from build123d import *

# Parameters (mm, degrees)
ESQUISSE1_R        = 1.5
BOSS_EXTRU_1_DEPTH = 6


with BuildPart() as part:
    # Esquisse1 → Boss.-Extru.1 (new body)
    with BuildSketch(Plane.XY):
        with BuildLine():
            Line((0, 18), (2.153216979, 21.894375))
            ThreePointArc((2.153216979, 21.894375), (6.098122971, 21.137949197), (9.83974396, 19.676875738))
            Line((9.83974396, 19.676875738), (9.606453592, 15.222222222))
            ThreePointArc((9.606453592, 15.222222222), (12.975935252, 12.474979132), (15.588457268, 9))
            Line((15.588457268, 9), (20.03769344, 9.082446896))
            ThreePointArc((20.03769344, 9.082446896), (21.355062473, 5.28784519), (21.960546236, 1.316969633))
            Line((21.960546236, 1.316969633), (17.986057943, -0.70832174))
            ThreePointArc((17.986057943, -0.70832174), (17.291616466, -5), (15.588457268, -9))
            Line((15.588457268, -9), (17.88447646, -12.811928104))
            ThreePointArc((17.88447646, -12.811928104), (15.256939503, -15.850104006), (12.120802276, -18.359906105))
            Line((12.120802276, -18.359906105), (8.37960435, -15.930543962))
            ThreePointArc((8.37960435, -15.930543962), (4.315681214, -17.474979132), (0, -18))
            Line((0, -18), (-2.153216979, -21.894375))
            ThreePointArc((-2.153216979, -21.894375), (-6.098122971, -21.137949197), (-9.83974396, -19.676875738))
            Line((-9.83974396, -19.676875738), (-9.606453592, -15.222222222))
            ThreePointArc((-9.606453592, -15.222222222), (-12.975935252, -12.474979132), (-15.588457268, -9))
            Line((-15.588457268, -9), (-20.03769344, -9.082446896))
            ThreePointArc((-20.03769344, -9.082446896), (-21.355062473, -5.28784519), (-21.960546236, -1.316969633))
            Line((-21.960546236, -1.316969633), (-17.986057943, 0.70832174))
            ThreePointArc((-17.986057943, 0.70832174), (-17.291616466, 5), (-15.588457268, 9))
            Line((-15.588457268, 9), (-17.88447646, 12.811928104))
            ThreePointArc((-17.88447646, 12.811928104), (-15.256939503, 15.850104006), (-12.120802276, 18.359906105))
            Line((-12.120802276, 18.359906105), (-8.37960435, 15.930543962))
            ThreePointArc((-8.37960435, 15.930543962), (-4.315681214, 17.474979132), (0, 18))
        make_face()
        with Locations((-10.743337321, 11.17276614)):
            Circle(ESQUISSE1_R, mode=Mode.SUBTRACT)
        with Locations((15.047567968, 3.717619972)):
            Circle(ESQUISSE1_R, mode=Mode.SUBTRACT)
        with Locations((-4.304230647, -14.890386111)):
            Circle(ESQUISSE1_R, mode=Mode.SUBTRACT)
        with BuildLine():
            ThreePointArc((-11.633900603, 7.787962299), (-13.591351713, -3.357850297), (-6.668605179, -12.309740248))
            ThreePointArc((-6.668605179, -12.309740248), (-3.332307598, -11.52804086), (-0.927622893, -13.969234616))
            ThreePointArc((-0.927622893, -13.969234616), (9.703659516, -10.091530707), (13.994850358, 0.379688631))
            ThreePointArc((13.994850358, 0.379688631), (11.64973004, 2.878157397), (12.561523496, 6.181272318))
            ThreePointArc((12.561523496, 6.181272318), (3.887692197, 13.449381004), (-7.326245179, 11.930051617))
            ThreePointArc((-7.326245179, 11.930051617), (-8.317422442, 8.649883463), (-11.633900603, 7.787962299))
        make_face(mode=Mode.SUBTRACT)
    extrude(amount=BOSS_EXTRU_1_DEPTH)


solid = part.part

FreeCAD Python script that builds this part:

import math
import FreeCAD as App
import Part
import Sketcher

V = App.Vector

doc = App.newDocument("Part")
params = doc.addObject("Spreadsheet::Sheet", "Params")
for row, (alias, value) in enumerate([
    ("sketch1_diameter", "3 mm"),
    ("sketch1_radius", "18 mm"),
    ("sketch1_radius2", "22 mm"),
    ("sketch1_radius3", "14 mm"),
    ("sketch1_radius4", "3.5 mm"),
    ("pad1_length", "6 mm"),
], start=1):
    params.set(f"A{row}", alias)
    params.set(f"B{row}", "=" + value)
    params.setAlias(f"B{row}", alias)

body = doc.addObject("PartDesign::Body", "Body")

# Sketch on XY plane
sketch1 = body.newObject("Sketcher::SketchObject", "Sketch")
sketch1.AttachmentSupport = (doc.getObject("XY_Plane"), [""])
sketch1.MapMode = "FlatFace"
sketch1.addGeometry(Part.LineSegment(V(2.153217, 21.894375, 0), V(0, 18, 0)), False)
sketch1.addGeometry(Part.ArcOfCircle(Part.Circle(V(0, 0, 0), V(0, 0, 1), 18), math.radians(90), math.radians(117.74476)), False)
sketch1.addGeometry(Part.LineSegment(V(-8.379604, 15.930544, 0), V(-12.120802, 18.359906, 0)), False)
sketch1.addGeometry(Part.ArcOfCircle(Part.Circle(V(0, 0, 0), V(0, 0, 1), 22), math.radians(123.431906), math.radians(144.38327)), False)
sketch1.addGeometry(Part.LineSegment(V(-17.884476, 12.811928, 0), V(-15.588457, 9, 0)), False)
sketch1.addGeometry(Part.ArcOfCircle(Part.Circle(V(0, 0, 0), V(0, 0, 1), 18), math.radians(150), math.radians(177.74476)), False)
sketch1.addGeometry(Part.LineSegment(V(-17.986058, 0.708322, 0), V(-21.960546, -1.31697, 0)), False)
sketch1.addGeometry(Part.ArcOfCircle(Part.Circle(V(0, 0, 0), V(0, 0, 1), 22), math.radians(-176.568094), math.radians(-155.61673)), False)
sketch1.addGeometry(Part.LineSegment(V(-20.037693, -9.082447, 0), V(-15.588457, -9, 0)), False)
sketch1.addGeometry(Part.ArcOfCircle(Part.Circle(V(0, 0, 0), V(0, 0, 1), 18), math.radians(-150), math.radians(-122.25524)), False)
sketch1.addGeometry(Part.LineSegment(V(-9.606454, -15.222222, 0), V(-9.839744, -19.676876, 0)), False)
sketch1.addGeometry(Part.ArcOfCircle(Part.Circle(V(0, 0, 0), V(0, 0, 1), 22), math.radians(-116.568094), math.radians(-95.61673)), False)
sketch1.addGeometry(Part.LineSegment(V(-2.153217, -21.894375, 0), V(0, -18, 0)), False)
sketch1.addGeometry(Part.ArcOfCircle(Part.Circle(V(0, 0, 0), V(0, 0, 1), 18), math.radians(-90), math.radians(-62.25524)), False)
sketch1.addGeometry(Part.LineSegment(V(8.379604, -15.930544, 0), V(12.120802, -18.359906, 0)), False)
sketch1.addGeometry(Part.ArcOfCircle(Part.Circle(V(0, 0, 0), V(0, 0, 1), 22), math.radians(-56.568094), math.radians(-35.61673)), False)
sketch1.addGeometry(Part.LineSegment(V(17.884476, -12.811928, 0), V(15.588457, -9, 0)), False)
sketch1.addGeometry(Part.ArcOfCircle(Part.Circle(V(0, 0, 0), V(0, 0, 1), 18), math.radians(-30), math.radians(-2.25524)), False)
sketch1.addGeometry(Part.LineSegment(V(17.986058, -0.708322, 0), V(21.960546, 1.31697, 0)), False)
sketch1.addGeometry(Part.ArcOfCircle(Part.Circle(V(0, 0, 0), V(0, 0, 1), 22), math.radians(3.431906), math.radians(24.38327)), False)
sketch1.addGeometry(Part.LineSegment(V(20.037693, 9.082447, 0), V(15.588457, 9, 0)), False)
sketch1.addGeometry(Part.ArcOfCircle(Part.Circle(V(0, 0, 0), V(0, 0, 1), 18), math.radians(30), math.radians(57.74476)), False)
sketch1.addGeometry(Part.LineSegment(V(9.606454, 15.222222, 0), V(9.839744, 19.676876, 0)), False)
sketch1.addGeometry(Part.ArcOfCircle(Part.Circle(V(0, 0, 0), V(0, 0, 1), 22), math.radians(63.431906), math.radians(84.38327)), False)
sketch1.addGeometry(Part.Circle(V(-4.304231, -14.890386, 0), V(0, 0, 1), 1.5), False)
sketch1.addGeometry(Part.Circle(V(15.047568, 3.71762, 0), V(0, 0, 1), 1.5), False)
sketch1.addGeometry(Part.ArcOfCircle(Part.Circle(V(-10.743337, 11.172766, 0), V(0, 0, 1), 3.5), math.radians(-104.740799), math.radians(12.495755)), False)
sketch1.addGeometry(Part.ArcOfCircle(Part.Circle(V(0, 0, 0), V(0, 0, 1), 14), math.radians(26.200868), math.radians(121.554087)), False)
sketch1.addGeometry(Part.ArcOfCircle(Part.Circle(V(15.047568, 3.71762, 0), V(0, 0, 1), 3.5), math.radians(135.259201), math.radians(252.495755)), False)
sketch1.addGeometry(Part.ArcOfCircle(Part.Circle(V(0, 0, 0), V(0, 0, 1), 14), math.radians(-93.799132), math.radians(1.554087)), False)
sketch1.addGeometry(Part.ArcOfCircle(Part.Circle(V(-4.304231, -14.890386, 0), V(0, 0, 1), 3.5), math.radians(15.259201), math.radians(132.495755)), False)
sketch1.addGeometry(Part.ArcOfCircle(Part.Circle(V(0, 0, 0), V(0, 0, 1), 14), math.radians(146.200868), math.radians(241.554087)), False)
sketch1.addGeometry(Part.Circle(V(-10.743337, 11.172766, 0), V(0, 0, 1), 1.5), False)
sketch1.addConstraint(Sketcher.Constraint("Coincident", 0, 2, 1, 1))
sketch1.addConstraint(Sketcher.Constraint("Coincident", 1, 2, 2, 1))
sketch1.addConstraint(Sketcher.Constraint("Coincident", 2, 2, 3, 1))
sketch1.addConstraint(Sketcher.Constraint("Coincident", 3, 2, 4, 1))
sketch1.addConstraint(Sketcher.Constraint("Coincident", 4, 2, 5, 1))
sketch1.addConstraint(Sketcher.Constraint("Coincident", 5, 2, 6, 1))
sketch1.addConstraint(Sketcher.Constraint("Coincident", 6, 2, 7, 1))
sketch1.addConstraint(Sketcher.Constraint("Coincident", 7, 2, 8, 1))
sketch1.addConstraint(Sketcher.Constraint("Coincident", 8, 2, 9, 1))
sketch1.addConstraint(Sketcher.Constraint("Coincident", 9, 2, 10, 1))
sketch1.addConstraint(Sketcher.Constraint("Coincident", 10, 2, 11, 1))
sketch1.addConstraint(Sketcher.Constraint("Coincident", 11, 2, 12, 1))
sketch1.addConstraint(Sketcher.Constraint("Coincident", 12, 2, 13, 1))
sketch1.addConstraint(Sketcher.Constraint("Coincident", 13, 2, 14, 1))
sketch1.addConstraint(Sketcher.Constraint("Coincident", 14, 2, 15, 1))
sketch1.addConstraint(Sketcher.Constraint("Coincident", 15, 2, 16, 1))
sketch1.addConstraint(Sketcher.Constraint("Coincident", 16, 2, 17, 1))
sketch1.addConstraint(Sketcher.Constraint("Coincident", 17, 2, 18, 1))
sketch1.addConstraint(Sketcher.Constraint("Coincident", 18, 2, 19, 1))
sketch1.addConstraint(Sketcher.Constraint("Coincident", 19, 2, 20, 1))
sketch1.addConstraint(Sketcher.Constraint("Coincident", 20, 2, 21, 1))
sketch1.addConstraint(Sketcher.Constraint("Coincident", 21, 2, 22, 1))
sketch1.addConstraint(Sketcher.Constraint("Coincident", 22, 2, 23, 1))
sketch1.addConstraint(Sketcher.Constraint("Coincident", 23, 2, 0, 1))
sketch1.addConstraint(Sketcher.Constraint("Coincident", 26, 2, 27, 2))
sketch1.addConstraint(Sketcher.Constraint("Coincident", 27, 1, 28, 1))
sketch1.addConstraint(Sketcher.Constraint("Coincident", 28, 2, 29, 2))
sketch1.addConstraint(Sketcher.Constraint("Coincident", 29, 1, 30, 1))
sketch1.addConstraint(Sketcher.Constraint("Coincident", 30, 2, 31, 2))
sketch1.addConstraint(Sketcher.Constraint("Coincident", 31, 1, 26, 1))
sketch1.addConstraint(Sketcher.Constraint("Coincident", 1, 3, -1, 1))
sketch1.addConstraint(Sketcher.Constraint("Coincident", 3, 3, -1, 1))
sketch1.addConstraint(Sketcher.Constraint("Coincident", 5, 3, -1, 1))
sketch1.addConstraint(Sketcher.Constraint("Coincident", 7, 3, -1, 1))
sketch1.addConstraint(Sketcher.Constraint("Coincident", 9, 3, -1, 1))
sketch1.addConstraint(Sketcher.Constraint("Coincident", 11, 3, -1, 1))
sketch1.addConstraint(Sketcher.Constraint("Coincident", 13, 3, -1, 1))
sketch1.addConstraint(Sketcher.Constraint("Coincident", 15, 3, -1, 1))
sketch1.addConstraint(Sketcher.Constraint("Coincident", 17, 3, -1, 1))
sketch1.addConstraint(Sketcher.Constraint("Coincident", 19, 3, -1, 1))
sketch1.addConstraint(Sketcher.Constraint("Coincident", 21, 3, -1, 1))
sketch1.addConstraint(Sketcher.Constraint("Coincident", 23, 3, -1, 1))
sketch1.addConstraint(Sketcher.Constraint("Coincident", 27, 3, -1, 1))
sketch1.addConstraint(Sketcher.Constraint("Coincident", 29, 3, -1, 1))
sketch1.addConstraint(Sketcher.Constraint("Coincident", 31, 3, -1, 1))
sketch1.addConstraint(Sketcher.Constraint("Coincident", 28, 3, 25, 3))
sketch1.addConstraint(Sketcher.Constraint("Coincident", 30, 3, 24, 3))
sketch1.addConstraint(Sketcher.Constraint("Coincident", 32, 3, 26, 3))
sketch1.addConstraint(Sketcher.Constraint("Equal", 1, 5))
sketch1.addConstraint(Sketcher.Constraint("Equal", 3, 7))
sketch1.addConstraint(Sketcher.Constraint("Equal", 5, 9))
sketch1.addConstraint(Sketcher.Constraint("Equal", 7, 11))
sketch1.addConstraint(Sketcher.Constraint("Equal", 9, 13))
sketch1.addConstraint(Sketcher.Constraint("Equal", 11, 15))
sketch1.addConstraint(Sketcher.Constraint("Equal", 13, 17))
sketch1.addConstraint(Sketcher.Constraint("Equal", 15, 19))
sketch1.addConstraint(Sketcher.Constraint("Equal", 17, 21))
sketch1.addConstraint(Sketcher.Constraint("Equal", 19, 23))
sketch1.addConstraint(Sketcher.Constraint("Equal", 24, 25))
sketch1.addConstraint(Sketcher.Constraint("Equal", 26, 28))
sketch1.addConstraint(Sketcher.Constraint("Equal", 27, 29))
sketch1.addConstraint(Sketcher.Constraint("Equal", 28, 30))
sketch1.addConstraint(Sketcher.Constraint("Equal", 29, 31))
sketch1.addConstraint(Sketcher.Constraint("Equal", 25, 32))
sketch1.addConstraint(Sketcher.Constraint("PointOnObject", 0, 2, -2))
sketch1.addConstraint(Sketcher.Constraint("PointOnObject", 12, 2, -2))
sketch1.addConstraint(Sketcher.Constraint("Parallel", 0, 12))
sketch1.addConstraint(Sketcher.Constraint("Parallel", 2, 14))
sketch1.addConstraint(Sketcher.Constraint("Parallel", 4, 16))
sketch1.addConstraint(Sketcher.Constraint("Parallel", 6, 18))
sketch1.addConstraint(Sketcher.Constraint("Parallel", 8, 20))
sketch1.addConstraint(Sketcher.Constraint("Parallel", 10, 22))
sketch1.addConstraint(Sketcher.Constraint("Horizontal", 8, 2, 16, 2))
sketch1.addConstraint(Sketcher.Constraint("Horizontal", 4, 2, 20, 2))
sketch1.addConstraint(Sketcher.Constraint("Vertical", 4, 2, 8, 2))
sketch1.addConstraint(Sketcher.Constraint("Equal", 0, 4))
sketch1.addConstraint(Sketcher.Constraint("Equal", 2, 6))
sketch1.addConstraint(Sketcher.Constraint("Equal", 4, 8))
sketch1.addConstraint(Sketcher.Constraint("Equal", 6, 10))
sketch1.addConstraint(Sketcher.Constraint("Equal", 10, 14))
sketch1.addConstraint(Sketcher.Constraint("Equal", 14, 18))
sketch1.addConstraint(Sketcher.Constraint("Equal", 18, 22))
sketch1.addConstraint(Sketcher.Constraint("Diameter", 24, 3.0))
sketch1.addConstraint(Sketcher.Constraint("Radius", 1, 18.0))
sketch1.addConstraint(Sketcher.Constraint("Radius", 3, 22.0))
sketch1.addConstraint(Sketcher.Constraint("Radius", 27, 14.0))
sketch1.addConstraint(Sketcher.Constraint("Radius", 26, 3.5))
sketch1.addConstraint(Sketcher.Constraint("DistanceY", -1, 1, 4, 2, 9.0))
sketch1.addConstraint(Sketcher.Constraint("Distance", 0, 4.45))
sketch1.addConstraint(Sketcher.Constraint("DistanceX", 31, 1, -1, 1, 11.633901))
sketch1.addConstraint(Sketcher.Constraint("DistanceX", 5, 2, 4, 2, 2.397601))
sketch1.addConstraint(Sketcher.Constraint("DistanceY", 11, 2, 10, 2, 2.217499))
sketch1.addConstraint(Sketcher.Constraint("Distance", 2, 4.460758))
sketch1.addConstraint(Sketcher.Constraint("DistanceX", 24, 3, -1, 1, 4.304231))
sketch1.addConstraint(Sketcher.Constraint("DistanceY", -1, 1, 25, 3, 3.71762))
sketch1.addConstraint(Sketcher.Constraint("DistanceY", -1, 1, 26, 2, 11.930052))
sketch1.addConstraint(Sketcher.Constraint("DistanceY", -1, 1, 28, 2, 0.379689))
sketch1.addConstraint(Sketcher.Constraint("DistanceY", 30, 2, -1, 1, 12.30974))
sketch1.addConstraint(Sketcher.Constraint("DistanceY", 26, 3, 2, 2, 7.18714))
sketch1.setExpression("Constraints[82]", "Params.sketch1_diameter")
sketch1.setExpression("Constraints[83]", "Params.sketch1_radius")
sketch1.setExpression("Constraints[84]", "Params.sketch1_radius2")
sketch1.setExpression("Constraints[85]", "Params.sketch1_radius3")
sketch1.setExpression("Constraints[86]", "Params.sketch1_radius4")
pad1 = body.newObject("PartDesign::Pad", "Pad")
pad1.Profile = sketch1
pad1.setExpression("Length", "Params.pad1_length")

doc.recompute()
